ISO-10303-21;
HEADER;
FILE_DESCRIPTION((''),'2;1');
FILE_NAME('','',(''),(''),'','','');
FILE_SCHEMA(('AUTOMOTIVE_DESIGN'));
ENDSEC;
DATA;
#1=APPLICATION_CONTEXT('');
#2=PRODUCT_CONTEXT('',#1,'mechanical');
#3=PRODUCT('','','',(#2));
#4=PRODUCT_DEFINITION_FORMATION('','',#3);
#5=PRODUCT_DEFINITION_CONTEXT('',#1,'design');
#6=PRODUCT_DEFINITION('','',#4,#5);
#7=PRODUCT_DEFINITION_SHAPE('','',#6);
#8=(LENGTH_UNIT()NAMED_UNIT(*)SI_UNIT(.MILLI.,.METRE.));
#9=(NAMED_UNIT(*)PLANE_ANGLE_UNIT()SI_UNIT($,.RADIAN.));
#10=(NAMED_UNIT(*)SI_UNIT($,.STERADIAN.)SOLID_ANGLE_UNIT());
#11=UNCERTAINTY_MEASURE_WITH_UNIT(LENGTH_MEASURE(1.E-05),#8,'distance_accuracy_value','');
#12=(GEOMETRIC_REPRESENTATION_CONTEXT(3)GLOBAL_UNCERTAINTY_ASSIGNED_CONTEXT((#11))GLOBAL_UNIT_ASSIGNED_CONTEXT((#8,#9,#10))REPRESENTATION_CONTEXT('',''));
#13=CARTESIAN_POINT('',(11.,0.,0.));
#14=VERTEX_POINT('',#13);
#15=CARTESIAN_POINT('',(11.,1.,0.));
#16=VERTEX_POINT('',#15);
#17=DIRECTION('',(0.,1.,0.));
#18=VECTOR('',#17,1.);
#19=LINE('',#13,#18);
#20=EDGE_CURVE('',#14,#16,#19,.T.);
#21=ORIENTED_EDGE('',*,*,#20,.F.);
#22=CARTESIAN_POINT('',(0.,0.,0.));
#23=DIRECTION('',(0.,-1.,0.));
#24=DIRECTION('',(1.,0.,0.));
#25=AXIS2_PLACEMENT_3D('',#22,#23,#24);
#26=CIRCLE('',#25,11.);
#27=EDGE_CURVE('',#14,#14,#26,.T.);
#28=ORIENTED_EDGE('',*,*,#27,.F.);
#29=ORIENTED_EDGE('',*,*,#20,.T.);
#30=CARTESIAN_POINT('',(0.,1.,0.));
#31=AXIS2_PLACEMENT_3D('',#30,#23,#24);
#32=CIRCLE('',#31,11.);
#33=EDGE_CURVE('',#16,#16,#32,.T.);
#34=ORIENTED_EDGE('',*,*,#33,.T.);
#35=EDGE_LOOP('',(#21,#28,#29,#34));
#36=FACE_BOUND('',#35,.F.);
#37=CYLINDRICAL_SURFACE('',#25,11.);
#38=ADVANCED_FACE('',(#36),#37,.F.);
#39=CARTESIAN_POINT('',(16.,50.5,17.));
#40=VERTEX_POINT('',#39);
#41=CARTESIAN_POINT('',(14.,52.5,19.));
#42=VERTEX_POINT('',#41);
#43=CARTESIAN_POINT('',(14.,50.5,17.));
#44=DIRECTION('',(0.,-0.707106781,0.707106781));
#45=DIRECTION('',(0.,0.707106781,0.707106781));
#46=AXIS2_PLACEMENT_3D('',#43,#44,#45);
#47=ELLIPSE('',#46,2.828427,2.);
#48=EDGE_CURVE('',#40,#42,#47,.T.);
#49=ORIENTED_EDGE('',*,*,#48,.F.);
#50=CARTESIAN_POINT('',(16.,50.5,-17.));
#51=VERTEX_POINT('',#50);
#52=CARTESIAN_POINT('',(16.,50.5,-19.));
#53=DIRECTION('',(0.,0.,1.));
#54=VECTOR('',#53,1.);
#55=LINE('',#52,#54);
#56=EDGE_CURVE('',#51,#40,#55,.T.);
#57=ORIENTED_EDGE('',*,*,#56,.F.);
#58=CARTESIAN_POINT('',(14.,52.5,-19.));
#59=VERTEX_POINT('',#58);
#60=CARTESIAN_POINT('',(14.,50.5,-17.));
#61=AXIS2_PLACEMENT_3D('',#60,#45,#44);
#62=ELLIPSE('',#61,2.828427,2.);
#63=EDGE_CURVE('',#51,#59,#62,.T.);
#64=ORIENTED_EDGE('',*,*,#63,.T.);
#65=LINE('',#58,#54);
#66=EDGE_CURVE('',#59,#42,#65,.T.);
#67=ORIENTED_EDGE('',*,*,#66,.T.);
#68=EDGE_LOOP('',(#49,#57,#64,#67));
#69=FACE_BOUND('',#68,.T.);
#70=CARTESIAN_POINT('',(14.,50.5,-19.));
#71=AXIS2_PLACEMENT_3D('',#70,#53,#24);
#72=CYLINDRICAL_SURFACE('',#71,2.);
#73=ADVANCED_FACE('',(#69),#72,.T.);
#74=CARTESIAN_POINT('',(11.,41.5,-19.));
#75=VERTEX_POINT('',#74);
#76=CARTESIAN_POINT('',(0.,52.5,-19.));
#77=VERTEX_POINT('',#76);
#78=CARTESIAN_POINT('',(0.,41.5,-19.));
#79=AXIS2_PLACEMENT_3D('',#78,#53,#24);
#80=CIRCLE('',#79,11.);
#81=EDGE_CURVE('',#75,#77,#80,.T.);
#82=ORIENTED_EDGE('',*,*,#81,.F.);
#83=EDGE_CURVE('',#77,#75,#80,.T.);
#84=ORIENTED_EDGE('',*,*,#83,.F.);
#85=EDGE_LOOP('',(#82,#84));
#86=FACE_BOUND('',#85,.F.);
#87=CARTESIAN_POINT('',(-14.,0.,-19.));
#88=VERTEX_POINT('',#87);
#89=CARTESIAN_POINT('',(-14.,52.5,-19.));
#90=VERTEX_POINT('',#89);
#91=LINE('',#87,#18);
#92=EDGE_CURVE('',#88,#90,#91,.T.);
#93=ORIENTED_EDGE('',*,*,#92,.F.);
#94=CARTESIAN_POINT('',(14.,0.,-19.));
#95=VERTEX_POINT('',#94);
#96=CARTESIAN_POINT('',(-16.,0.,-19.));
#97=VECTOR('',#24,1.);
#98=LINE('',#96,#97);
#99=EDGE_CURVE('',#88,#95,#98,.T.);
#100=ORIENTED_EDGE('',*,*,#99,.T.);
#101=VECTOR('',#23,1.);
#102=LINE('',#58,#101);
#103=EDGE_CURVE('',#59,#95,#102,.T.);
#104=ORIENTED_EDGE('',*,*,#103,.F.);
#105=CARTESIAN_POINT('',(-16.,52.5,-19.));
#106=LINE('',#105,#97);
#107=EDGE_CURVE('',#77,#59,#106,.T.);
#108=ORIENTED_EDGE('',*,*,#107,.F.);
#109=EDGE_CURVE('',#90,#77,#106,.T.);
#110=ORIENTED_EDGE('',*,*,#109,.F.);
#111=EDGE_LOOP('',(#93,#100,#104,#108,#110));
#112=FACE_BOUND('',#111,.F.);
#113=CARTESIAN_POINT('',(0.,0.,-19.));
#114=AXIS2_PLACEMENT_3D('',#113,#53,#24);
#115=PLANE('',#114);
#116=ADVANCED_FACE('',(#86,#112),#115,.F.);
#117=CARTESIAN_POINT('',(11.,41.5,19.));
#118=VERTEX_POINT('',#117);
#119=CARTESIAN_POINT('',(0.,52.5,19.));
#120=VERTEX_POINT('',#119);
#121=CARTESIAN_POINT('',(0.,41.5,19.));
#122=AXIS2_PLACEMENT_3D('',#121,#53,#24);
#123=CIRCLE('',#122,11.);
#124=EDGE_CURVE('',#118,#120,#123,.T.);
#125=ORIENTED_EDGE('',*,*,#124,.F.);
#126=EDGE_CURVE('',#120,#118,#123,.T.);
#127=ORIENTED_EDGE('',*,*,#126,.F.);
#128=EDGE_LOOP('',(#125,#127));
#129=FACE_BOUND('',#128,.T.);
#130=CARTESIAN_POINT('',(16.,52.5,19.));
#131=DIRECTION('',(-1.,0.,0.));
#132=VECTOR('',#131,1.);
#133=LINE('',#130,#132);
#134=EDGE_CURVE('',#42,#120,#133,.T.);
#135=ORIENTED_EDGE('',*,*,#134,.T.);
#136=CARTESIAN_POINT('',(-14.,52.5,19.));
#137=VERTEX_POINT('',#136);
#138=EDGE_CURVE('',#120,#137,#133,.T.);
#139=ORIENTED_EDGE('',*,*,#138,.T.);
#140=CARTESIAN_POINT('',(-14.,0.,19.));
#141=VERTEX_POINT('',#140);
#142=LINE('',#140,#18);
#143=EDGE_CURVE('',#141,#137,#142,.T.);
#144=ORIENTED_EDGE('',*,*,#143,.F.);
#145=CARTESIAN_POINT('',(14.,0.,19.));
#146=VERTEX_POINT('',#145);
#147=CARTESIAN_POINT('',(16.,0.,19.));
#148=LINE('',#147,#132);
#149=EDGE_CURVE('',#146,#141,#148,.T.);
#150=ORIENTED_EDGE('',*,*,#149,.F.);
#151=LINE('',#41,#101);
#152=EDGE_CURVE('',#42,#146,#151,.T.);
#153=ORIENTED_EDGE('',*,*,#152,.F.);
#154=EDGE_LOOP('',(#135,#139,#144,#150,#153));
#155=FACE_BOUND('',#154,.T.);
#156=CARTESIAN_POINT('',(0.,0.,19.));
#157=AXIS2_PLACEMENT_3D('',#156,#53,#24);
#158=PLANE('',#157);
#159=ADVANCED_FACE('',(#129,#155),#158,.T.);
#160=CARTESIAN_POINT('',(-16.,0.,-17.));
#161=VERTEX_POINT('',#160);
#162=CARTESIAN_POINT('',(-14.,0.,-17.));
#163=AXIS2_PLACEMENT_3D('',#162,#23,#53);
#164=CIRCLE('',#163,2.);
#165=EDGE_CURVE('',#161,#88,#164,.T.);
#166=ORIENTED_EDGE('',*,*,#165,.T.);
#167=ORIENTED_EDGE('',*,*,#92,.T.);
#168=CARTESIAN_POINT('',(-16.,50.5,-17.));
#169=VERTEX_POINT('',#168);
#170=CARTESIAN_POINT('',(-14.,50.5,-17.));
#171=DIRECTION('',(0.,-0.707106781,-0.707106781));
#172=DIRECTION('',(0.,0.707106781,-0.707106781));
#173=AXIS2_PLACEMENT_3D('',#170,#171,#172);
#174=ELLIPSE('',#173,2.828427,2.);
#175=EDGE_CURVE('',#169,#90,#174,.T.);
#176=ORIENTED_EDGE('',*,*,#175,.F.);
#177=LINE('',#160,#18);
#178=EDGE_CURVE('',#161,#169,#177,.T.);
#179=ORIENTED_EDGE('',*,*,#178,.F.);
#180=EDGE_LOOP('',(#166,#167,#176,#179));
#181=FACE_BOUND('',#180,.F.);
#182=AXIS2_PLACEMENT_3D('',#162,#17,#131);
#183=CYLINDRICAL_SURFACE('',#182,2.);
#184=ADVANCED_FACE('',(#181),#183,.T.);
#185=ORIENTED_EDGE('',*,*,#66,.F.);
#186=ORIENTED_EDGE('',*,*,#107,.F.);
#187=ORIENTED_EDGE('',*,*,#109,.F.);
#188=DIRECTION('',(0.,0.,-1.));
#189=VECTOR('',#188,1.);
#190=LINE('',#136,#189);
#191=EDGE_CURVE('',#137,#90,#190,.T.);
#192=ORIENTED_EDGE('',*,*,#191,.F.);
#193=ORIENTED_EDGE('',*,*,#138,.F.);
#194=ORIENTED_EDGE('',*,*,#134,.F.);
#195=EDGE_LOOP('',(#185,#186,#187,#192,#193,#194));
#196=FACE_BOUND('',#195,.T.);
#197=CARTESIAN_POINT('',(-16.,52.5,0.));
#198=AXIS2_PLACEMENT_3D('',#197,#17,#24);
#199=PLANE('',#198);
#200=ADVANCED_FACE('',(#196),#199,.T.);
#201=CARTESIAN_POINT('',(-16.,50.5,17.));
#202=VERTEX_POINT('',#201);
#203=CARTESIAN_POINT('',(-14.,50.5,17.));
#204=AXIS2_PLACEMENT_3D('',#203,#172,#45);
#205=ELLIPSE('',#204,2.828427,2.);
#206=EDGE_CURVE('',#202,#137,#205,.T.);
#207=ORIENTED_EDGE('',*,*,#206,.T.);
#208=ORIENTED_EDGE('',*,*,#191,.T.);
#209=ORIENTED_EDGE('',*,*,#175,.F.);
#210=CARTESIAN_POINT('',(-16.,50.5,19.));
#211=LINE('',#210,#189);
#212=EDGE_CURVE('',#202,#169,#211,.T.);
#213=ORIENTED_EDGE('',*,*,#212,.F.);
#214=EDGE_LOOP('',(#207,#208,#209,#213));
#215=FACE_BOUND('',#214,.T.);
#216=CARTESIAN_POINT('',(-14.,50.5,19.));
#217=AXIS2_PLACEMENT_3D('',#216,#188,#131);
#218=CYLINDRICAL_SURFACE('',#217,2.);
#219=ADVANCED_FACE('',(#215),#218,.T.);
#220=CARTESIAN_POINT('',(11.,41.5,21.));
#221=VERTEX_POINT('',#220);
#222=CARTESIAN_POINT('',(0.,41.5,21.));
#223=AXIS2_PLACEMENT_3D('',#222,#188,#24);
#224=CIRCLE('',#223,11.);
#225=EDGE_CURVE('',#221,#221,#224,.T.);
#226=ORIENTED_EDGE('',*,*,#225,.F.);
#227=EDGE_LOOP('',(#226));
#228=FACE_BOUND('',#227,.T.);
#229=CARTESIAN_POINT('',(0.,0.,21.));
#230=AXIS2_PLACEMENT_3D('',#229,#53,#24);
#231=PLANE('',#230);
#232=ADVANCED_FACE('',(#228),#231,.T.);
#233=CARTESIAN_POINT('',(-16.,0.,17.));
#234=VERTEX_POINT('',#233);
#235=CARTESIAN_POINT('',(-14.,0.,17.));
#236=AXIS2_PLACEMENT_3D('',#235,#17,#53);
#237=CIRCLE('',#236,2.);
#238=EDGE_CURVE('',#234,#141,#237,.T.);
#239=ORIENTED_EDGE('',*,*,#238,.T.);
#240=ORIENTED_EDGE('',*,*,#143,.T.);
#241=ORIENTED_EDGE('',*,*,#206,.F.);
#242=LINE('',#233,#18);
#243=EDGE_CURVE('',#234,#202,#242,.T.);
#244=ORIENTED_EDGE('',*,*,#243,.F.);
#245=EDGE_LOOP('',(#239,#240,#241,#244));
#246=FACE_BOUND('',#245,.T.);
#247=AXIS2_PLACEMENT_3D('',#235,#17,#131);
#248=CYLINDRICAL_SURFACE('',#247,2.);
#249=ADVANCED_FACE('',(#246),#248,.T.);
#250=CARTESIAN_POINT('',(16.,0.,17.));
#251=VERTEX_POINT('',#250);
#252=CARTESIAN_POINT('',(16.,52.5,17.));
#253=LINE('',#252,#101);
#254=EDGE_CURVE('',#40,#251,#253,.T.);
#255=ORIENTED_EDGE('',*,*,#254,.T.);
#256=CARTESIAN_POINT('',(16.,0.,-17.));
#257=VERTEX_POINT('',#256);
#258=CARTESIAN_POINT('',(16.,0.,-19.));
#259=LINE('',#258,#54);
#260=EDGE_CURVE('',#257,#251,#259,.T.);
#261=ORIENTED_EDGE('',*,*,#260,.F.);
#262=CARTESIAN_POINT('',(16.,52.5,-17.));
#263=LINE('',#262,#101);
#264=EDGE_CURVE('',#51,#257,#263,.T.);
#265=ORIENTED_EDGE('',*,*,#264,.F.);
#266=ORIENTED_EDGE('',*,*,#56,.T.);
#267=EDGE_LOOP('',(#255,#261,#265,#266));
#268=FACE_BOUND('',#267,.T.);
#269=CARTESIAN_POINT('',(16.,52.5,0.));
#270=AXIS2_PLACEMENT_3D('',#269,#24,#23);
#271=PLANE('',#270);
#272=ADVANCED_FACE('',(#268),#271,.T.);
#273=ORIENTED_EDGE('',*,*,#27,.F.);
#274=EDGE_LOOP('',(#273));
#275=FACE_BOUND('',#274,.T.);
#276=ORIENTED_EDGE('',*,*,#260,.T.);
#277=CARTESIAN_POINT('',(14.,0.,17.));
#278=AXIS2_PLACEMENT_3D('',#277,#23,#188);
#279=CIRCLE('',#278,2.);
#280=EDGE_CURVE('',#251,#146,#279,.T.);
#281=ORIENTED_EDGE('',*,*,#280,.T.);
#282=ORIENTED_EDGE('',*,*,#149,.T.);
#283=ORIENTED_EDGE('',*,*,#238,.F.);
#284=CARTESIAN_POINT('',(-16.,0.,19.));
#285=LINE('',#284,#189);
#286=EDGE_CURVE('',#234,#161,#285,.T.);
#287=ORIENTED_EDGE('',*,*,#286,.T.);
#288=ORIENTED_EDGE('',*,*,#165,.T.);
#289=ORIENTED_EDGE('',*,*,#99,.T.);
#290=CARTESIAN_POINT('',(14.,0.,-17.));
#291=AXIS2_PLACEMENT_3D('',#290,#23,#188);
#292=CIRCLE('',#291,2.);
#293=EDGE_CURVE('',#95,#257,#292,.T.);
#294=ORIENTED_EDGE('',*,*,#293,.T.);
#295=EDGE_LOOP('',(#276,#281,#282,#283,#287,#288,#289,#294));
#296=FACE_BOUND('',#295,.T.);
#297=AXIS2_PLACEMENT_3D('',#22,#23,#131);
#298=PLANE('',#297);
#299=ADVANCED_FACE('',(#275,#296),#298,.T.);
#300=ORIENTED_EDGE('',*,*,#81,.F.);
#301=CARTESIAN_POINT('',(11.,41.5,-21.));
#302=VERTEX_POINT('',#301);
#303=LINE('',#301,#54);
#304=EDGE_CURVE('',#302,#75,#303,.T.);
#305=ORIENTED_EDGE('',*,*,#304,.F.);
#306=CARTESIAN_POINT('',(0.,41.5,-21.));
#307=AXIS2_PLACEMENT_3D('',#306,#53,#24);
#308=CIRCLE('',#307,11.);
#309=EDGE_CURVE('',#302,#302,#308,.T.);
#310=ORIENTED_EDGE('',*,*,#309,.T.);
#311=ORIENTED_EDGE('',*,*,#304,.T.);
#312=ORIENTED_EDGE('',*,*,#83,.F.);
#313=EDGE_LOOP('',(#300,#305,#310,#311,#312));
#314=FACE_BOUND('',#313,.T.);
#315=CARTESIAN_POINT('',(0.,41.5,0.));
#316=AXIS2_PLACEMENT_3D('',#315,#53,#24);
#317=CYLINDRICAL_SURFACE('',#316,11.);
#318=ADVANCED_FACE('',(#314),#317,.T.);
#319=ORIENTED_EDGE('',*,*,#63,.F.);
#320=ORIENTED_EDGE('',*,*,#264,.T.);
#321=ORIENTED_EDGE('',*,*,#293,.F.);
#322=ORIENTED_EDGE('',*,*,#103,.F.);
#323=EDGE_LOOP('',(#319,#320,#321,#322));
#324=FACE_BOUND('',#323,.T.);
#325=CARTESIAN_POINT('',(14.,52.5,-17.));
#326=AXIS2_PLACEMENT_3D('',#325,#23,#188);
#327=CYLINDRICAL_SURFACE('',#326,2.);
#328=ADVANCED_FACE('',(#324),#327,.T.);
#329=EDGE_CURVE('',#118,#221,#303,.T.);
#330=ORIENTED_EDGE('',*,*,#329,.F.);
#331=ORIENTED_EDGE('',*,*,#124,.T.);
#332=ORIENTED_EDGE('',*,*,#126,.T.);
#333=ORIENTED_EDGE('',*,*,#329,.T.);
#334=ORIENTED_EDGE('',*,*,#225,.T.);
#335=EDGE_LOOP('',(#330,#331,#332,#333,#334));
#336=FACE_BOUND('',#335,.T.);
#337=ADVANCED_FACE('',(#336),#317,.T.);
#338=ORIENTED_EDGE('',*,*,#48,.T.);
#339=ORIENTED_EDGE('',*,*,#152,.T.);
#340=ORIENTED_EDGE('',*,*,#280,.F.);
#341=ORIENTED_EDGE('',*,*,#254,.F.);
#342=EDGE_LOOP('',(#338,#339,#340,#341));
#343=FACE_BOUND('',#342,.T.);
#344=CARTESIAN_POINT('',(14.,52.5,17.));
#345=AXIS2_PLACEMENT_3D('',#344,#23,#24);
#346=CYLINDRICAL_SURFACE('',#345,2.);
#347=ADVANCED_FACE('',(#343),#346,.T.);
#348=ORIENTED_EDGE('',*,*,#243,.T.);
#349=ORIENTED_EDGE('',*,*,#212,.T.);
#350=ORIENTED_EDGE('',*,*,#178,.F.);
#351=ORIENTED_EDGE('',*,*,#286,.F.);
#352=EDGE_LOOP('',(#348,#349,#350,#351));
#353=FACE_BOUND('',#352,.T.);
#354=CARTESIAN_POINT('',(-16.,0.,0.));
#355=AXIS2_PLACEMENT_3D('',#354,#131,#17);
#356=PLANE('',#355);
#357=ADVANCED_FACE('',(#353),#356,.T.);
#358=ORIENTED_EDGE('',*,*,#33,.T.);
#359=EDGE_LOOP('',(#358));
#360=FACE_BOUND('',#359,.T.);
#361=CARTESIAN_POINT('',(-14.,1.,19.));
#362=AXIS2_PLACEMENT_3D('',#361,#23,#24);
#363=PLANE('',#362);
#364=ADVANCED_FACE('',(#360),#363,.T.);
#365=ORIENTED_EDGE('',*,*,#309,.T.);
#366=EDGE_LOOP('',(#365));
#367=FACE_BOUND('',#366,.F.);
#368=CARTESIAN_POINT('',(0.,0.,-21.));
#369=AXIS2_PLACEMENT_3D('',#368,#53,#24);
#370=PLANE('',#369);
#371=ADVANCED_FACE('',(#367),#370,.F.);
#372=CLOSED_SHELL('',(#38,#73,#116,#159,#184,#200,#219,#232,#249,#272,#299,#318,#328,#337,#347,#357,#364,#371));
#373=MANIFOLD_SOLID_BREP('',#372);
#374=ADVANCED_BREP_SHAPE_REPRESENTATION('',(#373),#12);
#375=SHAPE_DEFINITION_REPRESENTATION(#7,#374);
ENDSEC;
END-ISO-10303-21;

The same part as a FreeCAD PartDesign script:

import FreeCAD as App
import Part
import Sketcher
from FreeCAD import Vector
Q = App.Units.Quantity


def edges_at(feature, points):
    """Names of the edges that pass closest to the given points."""
    edges = feature.Shape.Edges
    near = lambda p: min(range(len(edges)), key=lambda i: edges[i].distToShape(Part.Vertex(*p))[0])
    return sorted({f"Edge{near(p) + 1}" for p in points})


def add_polygon(sketch, points):
    """Adds a closed chain of lines whose ends are joined by coincident constraints."""
    first, n = sketch.GeometryCount, len(points)
    for a, b in zip(points, points[1:] + points[:1]):
        sketch.addGeometry(Part.LineSegment(App.Vector(*a, 0), App.Vector(*b, 0)), False)
    for i in range(n):
        sketch.addConstraint(Sketcher.Constraint("Coincident", first + i, 2, first + (i + 1) % n, 1))

doc = App.newDocument("Part")
body = doc.addObject("PartDesign::Body", "Body")

sketch1 = body.newObject("Sketcher::SketchObject", "Sketch")
sketch1.AttachmentSupport = (doc.getObject("XY_Plane"), [""])
sketch1.MapMode = "FlatFace"
add_polygon(sketch1, [(-16, 0), (16, 0), (16, 52), (-16, 52)])
sketch1.addConstraint([
    Sketcher.Constraint("Horizontal", 0),
    Sketcher.Constraint("Vertical", 1),
    Sketcher.Constraint("Horizontal", 2),
    Sketcher.Constraint("Vertical", 3),
    Sketcher.Constraint("Symmetric", 0, 2, 3, 2, -1, 1),
    Sketcher.Constraint("DistanceX", -1, 1, 0, 2, Q("16 mm")),
    Sketcher.Constraint("DistanceY", 1, 1, 1, 2, Q("52.5 mm")),
])
pad1 = body.newObject("PartDesign::Pad", "Pad")
pad1.Profile = sketch1
pad1.Length = 38
pad1.Midplane = True

sketch2 = body.newObject("Sketcher::SketchObject", "Sketch001")
sketch2.AttachmentSupport = (doc.getObject("XY_Plane"), [""])
sketch2.MapMode = "FlatFace"
sketch2.addGeometry(Part.Circle(Vector(0, 42, 0), Vector(0, 0, 1), 11), False)
sketch2.addConstraint([
    Sketcher.Constraint("PointOnObject", 0, 3, -2),
    Sketcher.Constraint("Diameter", 0, Q("22 mm")),
    Sketcher.Constraint("DistanceY", -1, 1, 0, 3, Q("41.5 mm")),
])
pad2 = body.newObject("PartDesign::Pad", "Pad001")
pad2.Profile = sketch2
pad2.Length = 42
pad2.Midplane = True
doc.recompute()

fillet = body.newObject("PartDesign::Fillet", "Fillet")
fillet.Base = (pad2, edges_at(pad2, [
    (-16, 26.25, 19),
    (-16, 26.25, -19),
    (-16, 52.5, 0),
    (16, 52.5, 0),
    (16, 26.25, 19),
    (16, 26.25, -19),
]))
fillet.Radius = 2

sketch3 = body.newObject("Sketcher::SketchObject", "Sketch002")
sketch3.AttachmentSupport = (doc.getObject("XZ_Plane"), [""])
sketch3.MapMode = "FlatFace"
sketch3.addGeometry(Part.Circle(Vector(0, 0, 0), Vector(0, 0, 1), 11), False)
sketch3.addConstraint([
    Sketcher.Constraint("Coincident", 0, 3, -1, 1),
    Sketcher.Constraint("Diameter", 0, Q("22 mm")),
])
pocket1 = body.newObject("PartDesign::Pocket", "Pocket")
pocket1.Profile = sketch3
pocket1.Length = 1

doc.recompute()
